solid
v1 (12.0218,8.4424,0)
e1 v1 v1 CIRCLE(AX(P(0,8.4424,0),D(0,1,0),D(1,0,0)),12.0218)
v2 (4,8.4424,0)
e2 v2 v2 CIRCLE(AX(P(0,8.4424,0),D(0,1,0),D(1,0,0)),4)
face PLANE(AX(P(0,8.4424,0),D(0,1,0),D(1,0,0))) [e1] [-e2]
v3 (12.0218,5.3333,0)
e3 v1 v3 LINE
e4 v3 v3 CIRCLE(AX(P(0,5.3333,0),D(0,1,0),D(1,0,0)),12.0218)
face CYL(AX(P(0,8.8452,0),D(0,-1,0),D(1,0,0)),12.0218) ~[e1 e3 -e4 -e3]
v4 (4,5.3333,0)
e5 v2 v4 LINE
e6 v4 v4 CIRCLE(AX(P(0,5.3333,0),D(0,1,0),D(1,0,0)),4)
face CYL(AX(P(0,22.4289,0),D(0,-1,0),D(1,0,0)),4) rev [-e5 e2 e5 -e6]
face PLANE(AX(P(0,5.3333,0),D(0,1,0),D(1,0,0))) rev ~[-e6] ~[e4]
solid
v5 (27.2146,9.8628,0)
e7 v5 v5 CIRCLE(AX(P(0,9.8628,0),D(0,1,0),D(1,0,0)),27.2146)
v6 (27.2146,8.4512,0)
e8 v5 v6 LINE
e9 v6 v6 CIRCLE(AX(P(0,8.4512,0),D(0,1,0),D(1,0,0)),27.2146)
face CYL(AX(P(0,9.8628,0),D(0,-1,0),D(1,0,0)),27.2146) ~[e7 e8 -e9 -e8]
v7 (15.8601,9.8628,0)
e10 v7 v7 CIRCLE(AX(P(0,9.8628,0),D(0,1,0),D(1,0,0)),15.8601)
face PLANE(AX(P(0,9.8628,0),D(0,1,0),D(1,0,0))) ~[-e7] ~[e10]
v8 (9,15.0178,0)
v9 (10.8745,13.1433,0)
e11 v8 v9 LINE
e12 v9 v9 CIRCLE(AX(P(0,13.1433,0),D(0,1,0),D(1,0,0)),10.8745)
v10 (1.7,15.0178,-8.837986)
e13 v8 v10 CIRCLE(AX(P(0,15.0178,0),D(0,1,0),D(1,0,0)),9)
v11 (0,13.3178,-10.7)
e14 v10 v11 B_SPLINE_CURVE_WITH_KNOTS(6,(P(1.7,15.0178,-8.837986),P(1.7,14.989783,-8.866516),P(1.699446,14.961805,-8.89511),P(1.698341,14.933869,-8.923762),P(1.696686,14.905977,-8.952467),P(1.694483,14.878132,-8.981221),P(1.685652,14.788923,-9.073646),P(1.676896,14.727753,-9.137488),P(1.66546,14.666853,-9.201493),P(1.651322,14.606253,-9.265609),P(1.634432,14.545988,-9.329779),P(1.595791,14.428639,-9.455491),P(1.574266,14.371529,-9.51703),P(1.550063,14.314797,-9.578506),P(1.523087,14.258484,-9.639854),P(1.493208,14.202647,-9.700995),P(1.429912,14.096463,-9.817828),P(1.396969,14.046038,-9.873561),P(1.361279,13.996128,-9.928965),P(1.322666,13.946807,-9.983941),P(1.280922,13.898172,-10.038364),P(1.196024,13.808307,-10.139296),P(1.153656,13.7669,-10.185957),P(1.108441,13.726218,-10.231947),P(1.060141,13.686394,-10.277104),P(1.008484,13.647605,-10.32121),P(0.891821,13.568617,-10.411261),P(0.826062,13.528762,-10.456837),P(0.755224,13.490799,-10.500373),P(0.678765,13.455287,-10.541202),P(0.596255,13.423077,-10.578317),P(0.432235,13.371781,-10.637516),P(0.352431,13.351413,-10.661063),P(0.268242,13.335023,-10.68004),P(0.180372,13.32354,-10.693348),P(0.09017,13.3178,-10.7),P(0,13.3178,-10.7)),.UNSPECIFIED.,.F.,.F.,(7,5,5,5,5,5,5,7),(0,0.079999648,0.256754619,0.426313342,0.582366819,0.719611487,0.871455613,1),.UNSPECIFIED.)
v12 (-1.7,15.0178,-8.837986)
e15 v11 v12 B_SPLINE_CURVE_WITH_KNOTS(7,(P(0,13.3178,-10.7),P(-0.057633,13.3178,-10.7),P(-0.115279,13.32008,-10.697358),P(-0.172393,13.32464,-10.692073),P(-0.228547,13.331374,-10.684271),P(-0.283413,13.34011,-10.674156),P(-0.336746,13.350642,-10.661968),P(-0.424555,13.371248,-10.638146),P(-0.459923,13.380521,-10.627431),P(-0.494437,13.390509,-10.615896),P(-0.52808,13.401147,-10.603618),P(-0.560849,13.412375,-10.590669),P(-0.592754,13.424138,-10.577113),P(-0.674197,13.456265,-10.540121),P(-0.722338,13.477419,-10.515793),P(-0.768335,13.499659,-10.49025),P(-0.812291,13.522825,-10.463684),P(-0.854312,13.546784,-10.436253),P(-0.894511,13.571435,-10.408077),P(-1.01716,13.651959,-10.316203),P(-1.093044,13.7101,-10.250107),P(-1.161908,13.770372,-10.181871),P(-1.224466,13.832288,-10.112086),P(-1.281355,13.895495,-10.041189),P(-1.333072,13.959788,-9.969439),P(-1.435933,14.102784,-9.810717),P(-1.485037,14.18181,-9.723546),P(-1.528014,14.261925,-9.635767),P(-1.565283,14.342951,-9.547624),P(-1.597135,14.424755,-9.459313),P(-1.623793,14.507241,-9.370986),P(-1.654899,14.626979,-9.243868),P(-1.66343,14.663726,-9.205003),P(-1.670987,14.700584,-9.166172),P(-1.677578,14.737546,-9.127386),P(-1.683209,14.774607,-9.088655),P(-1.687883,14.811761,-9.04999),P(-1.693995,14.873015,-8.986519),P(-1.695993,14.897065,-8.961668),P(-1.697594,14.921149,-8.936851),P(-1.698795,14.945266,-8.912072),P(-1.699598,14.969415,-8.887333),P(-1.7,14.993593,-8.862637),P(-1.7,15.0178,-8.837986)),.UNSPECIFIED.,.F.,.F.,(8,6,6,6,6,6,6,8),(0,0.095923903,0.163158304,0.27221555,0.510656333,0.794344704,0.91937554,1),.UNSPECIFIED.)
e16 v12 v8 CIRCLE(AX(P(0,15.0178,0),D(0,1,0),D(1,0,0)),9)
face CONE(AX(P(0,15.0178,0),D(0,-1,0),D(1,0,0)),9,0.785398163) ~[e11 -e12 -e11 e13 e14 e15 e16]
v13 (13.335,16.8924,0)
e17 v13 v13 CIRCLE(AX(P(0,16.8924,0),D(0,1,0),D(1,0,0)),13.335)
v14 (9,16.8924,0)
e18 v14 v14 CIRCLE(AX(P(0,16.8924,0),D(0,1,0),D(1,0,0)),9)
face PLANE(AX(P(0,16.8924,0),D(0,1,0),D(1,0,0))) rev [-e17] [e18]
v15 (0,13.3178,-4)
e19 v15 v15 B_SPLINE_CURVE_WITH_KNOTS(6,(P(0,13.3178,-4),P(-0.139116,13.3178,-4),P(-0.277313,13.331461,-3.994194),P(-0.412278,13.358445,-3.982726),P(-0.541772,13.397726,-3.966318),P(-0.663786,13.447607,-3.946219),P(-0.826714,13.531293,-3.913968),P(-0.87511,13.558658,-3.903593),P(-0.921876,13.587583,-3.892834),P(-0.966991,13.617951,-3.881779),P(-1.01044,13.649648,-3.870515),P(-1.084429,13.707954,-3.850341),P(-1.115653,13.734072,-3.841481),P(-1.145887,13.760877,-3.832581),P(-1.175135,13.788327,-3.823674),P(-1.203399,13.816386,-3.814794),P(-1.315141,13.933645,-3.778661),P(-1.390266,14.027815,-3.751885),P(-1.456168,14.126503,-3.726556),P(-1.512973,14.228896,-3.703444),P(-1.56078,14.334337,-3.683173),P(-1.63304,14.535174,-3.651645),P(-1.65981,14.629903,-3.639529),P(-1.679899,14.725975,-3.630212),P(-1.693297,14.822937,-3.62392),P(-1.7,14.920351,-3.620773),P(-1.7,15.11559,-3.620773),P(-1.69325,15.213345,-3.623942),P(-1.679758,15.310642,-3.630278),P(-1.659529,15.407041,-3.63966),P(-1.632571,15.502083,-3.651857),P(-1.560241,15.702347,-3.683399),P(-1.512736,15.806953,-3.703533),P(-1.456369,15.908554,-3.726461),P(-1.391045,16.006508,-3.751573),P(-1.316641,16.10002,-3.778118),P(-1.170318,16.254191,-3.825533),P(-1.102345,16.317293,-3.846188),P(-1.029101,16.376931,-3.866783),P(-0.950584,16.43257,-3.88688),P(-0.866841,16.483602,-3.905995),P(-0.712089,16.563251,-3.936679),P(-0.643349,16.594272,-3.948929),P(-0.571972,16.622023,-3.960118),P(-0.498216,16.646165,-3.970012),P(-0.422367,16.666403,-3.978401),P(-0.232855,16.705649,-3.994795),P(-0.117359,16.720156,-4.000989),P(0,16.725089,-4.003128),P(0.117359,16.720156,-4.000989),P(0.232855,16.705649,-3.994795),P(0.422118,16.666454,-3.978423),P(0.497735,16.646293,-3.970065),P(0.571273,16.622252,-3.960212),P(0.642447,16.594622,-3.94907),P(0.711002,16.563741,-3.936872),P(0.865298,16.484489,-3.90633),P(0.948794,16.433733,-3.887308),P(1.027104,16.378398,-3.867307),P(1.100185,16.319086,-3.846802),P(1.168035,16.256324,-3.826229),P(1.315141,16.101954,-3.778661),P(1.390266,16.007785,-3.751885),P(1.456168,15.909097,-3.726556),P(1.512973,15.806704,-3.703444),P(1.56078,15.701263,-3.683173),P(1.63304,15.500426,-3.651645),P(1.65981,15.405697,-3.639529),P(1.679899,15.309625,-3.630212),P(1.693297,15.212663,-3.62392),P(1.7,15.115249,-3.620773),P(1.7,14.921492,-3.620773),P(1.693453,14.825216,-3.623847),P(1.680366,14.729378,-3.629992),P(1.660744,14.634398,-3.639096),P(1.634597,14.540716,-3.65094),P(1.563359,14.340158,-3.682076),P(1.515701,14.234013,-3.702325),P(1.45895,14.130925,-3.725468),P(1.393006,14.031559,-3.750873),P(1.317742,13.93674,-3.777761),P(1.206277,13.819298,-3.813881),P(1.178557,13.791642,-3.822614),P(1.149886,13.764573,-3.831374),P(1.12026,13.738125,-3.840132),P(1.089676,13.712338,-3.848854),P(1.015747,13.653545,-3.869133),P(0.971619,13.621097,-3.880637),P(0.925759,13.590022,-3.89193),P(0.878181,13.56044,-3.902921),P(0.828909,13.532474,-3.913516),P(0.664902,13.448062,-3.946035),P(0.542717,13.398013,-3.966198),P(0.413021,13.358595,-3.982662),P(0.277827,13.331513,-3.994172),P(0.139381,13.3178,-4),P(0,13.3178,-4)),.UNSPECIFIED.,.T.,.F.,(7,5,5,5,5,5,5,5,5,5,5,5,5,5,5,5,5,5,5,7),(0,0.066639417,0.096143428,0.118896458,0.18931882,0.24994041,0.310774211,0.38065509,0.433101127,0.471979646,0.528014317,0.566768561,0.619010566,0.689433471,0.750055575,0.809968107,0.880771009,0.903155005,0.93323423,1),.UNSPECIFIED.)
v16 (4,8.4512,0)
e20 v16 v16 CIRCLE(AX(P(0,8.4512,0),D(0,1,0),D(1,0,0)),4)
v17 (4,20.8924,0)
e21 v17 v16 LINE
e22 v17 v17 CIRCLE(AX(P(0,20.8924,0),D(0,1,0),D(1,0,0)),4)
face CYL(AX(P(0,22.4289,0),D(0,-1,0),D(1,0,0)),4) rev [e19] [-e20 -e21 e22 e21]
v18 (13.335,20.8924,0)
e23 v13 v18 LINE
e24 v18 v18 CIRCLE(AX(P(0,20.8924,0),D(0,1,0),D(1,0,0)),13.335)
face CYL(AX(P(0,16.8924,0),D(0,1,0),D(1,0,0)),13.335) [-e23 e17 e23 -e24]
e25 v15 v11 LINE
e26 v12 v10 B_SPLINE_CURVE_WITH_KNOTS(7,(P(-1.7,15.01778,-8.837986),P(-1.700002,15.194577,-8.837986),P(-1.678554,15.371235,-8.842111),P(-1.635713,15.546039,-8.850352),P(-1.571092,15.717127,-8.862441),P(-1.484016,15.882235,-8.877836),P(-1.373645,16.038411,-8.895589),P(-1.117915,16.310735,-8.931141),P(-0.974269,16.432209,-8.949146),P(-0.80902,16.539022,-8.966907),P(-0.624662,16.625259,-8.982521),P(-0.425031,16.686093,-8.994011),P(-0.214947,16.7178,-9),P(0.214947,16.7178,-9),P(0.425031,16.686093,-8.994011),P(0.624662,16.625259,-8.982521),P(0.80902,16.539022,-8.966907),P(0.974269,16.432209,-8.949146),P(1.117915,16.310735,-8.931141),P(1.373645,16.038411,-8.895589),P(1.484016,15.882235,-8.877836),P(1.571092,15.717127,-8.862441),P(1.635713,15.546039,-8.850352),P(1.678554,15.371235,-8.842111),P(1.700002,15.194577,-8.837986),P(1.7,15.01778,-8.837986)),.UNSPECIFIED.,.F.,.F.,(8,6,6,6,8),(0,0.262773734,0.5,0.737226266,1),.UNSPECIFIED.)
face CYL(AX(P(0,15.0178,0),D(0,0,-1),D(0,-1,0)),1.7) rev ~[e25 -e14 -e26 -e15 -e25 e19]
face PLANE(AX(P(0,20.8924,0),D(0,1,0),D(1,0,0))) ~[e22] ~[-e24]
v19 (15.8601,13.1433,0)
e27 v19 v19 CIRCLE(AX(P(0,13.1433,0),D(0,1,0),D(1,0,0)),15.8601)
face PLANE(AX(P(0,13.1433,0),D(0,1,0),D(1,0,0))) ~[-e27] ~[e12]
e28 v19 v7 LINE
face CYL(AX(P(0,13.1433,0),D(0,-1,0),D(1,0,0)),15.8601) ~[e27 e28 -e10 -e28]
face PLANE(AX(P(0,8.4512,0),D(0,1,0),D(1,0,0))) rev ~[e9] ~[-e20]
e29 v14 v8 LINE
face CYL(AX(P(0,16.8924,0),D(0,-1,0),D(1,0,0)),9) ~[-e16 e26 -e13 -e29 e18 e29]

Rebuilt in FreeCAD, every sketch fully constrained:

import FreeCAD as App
import Part
import Sketcher
from FreeCAD import Vector
Q = App.Units.Quantity

doc = App.newDocument("Part")
body = doc.addObject("PartDesign::Body", "Body")
body.AllowCompound = True

# Sketch on XY plane
sketch1 = body.newObject("Sketcher::SketchObject", "Sketch")
sketch1.AttachmentSupport = (doc.getObject("XY_Plane"), [""])
sketch1.MapMode = "FlatFace"
sketch1.addGeometry(Part.LineSegment(Vector(9, 16.8924, 0), Vector(13.335, 16.8924, 0)), False)
sketch1.addGeometry(Part.LineSegment(Vector(13.335, 16.8924, 0), Vector(13.335, 20.8924, 0)), False)
sketch1.addGeometry(Part.LineSegment(Vector(13.335, 20.8924, 0), Vector(4, 20.8924, 0)), False)
sketch1.addGeometry(Part.LineSegment(Vector(4, 20.8924, 0), Vector(4, 8.4512, 0)), False)
sketch1.addGeometry(Part.LineSegment(Vector(4, 8.4512, 0), Vector(27.2146, 8.4512, 0)), False)
sketch1.addGeometry(Part.LineSegment(Vector(27.2146, 8.4512, 0), Vector(27.2146, 9.8628, 0)), False)
sketch1.addGeometry(Part.LineSegment(Vector(27.2146, 9.8628, 0), Vector(15.8601, 9.8628, 0)), False)
sketch1.addGeometry(Part.LineSegment(Vector(15.8601, 9.8628, 0), Vector(15.8601, 13.1433, 0)), False)
sketch1.addGeometry(Part.LineSegment(Vector(15.8601, 13.1433, 0), Vector(10.8745, 13.1433, 0)), False)
sketch1.addGeometry(Part.LineSegment(Vector(10.8745, 13.1433, 0), Vector(9, 15.0178, 0)), False)
sketch1.addGeometry(Part.LineSegment(Vector(9, 15.0178, 0), Vector(9, 16.8924, 0)), False)
sketch1.addGeometry(Part.LineSegment(Vector(12.0218, 8.4424, 0), Vector(4, 8.4424, 0)), False)
sketch1.addGeometry(Part.LineSegment(Vector(4, 8.4424, 0), Vector(4, 5.3333, 0)), False)
sketch1.addGeometry(Part.LineSegment(Vector(4, 5.3333, 0), Vector(12.0218, 5.3333, 0)), False)
sketch1.addGeometry(Part.LineSegment(Vector(12.0218, 5.3333, 0), Vector(12.0218, 8.4424, 0)), False)
sketch1.addConstraint(Sketcher.Constraint("Coincident", 0, 2, 1, 1))
sketch1.addConstraint(Sketcher.Constraint("Coincident", 1, 2, 2, 1))
sketch1.addConstraint(Sketcher.Constraint("Coincident", 2, 2, 3, 1))
sketch1.addConstraint(Sketcher.Constraint("Coincident", 3, 2, 4, 1))
sketch1.addConstraint(Sketcher.Constraint("Coincident", 4, 2, 5, 1))
sketch1.addConstraint(Sketcher.Constraint("Coincident", 5, 2, 6, 1))
sketch1.addConstraint(Sketcher.Constraint("Coincident", 6, 2, 7, 1))
sketch1.addConstraint(Sketcher.Constraint("Coincident", 7, 2, 8, 1))
sketch1.addConstraint(Sketcher.Constraint("Coincident", 8, 2, 9, 1))
sketch1.addConstraint(Sketcher.Constraint("Coincident", 9, 2, 10, 1))
sketch1.addConstraint(Sketcher.Constraint("Coincident", 10, 2, 0, 1))
sketch1.addConstraint(Sketcher.Constraint("Coincident", 11, 2, 12, 1))
sketch1.addConstraint(Sketcher.Constraint("Coincident", 12, 2, 13, 1))
sketch1.addConstraint(Sketcher.Constraint("Coincident", 13, 2, 14, 1))
sketch1.addConstraint(Sketcher.Constraint("Coincident", 14, 2, 11, 1))
sketch1.addConstraint(Sketcher.Constraint("Horizontal", 0))
sketch1.addConstraint(Sketcher.Constraint("Vertical", 1))
sketch1.addConstraint(Sketcher.Constraint("Horizontal", 2))
sketch1.addConstraint(Sketcher.Constraint("Vertical", 3))
sketch1.addConstraint(Sketcher.Constraint("Horizontal", 4))
sketch1.addConstraint(Sketcher.Constraint("Vertical", 5))
sketch1.addConstraint(Sketcher.Constraint("Horizontal", 6))
sketch1.addConstraint(Sketcher.Constraint("Vertical", 7))
sketch1.addConstraint(Sketcher.Constraint("Horizontal", 8))
sketch1.addConstraint(Sketcher.Constraint("Vertical", 10))
sketch1.addConstraint(Sketcher.Constraint("Horizontal", 11))
sketch1.addConstraint(Sketcher.Constraint("Vertical", 12))
sketch1.addConstraint(Sketcher.Constraint("Horizontal", 13))
sketch1.addConstraint(Sketcher.Constraint("Vertical", 14))
sketch1.addConstraint(Sketcher.Constraint("Vertical", 3, 2, 11, 2))
sketch1.addConstraint(Sketcher.Constraint("DistanceY", 1, 1, 1, 2, Q("4 mm")))
sketch1.addConstraint(Sketcher.Constraint("DistanceX", -1, 1, 2, 2, Q("4 mm")))
sketch1.addConstraint(Sketcher.Constraint("Angle", 9, Q("135 deg")))
sketch1.addConstraint(Sketcher.Constraint("DistanceX", -1, 1, 9, 2, Q("9 mm")))
sketch1.addConstraint(Sketcher.Constraint("DistanceX", 0, 1, 0, 2, Q("4.335 mm")))
sketch1.addConstraint(Sketcher.Constraint("DistanceY", 12, 2, 12, 1, Q("3.109 mm")))
sketch1.addConstraint(Sketcher.Constraint("DistanceX", -1, 1, 6, 2, Q("15.86 mm")))
sketch1.addConstraint(Sketcher.Constraint("DistanceY", 11, 2, 10, 2, Q("8.45 mm")))
sketch1.addConstraint(Sketcher.Constraint("DistanceY", 12, 2, 8, 2, Q("7.81 mm")))
sketch1.addConstraint(Sketcher.Constraint("Distance", 9, Q("2.651 mm")))
sketch1.addConstraint(Sketcher.Constraint("DistanceX", 4, 1, 4, 2, Q("23.2146 mm")))
sketch1.addConstraint(Sketcher.Constraint("DistanceX", 11, 2, 11, 1, Q("8.0218 mm")))
sketch1.addConstraint(Sketcher.Constraint("DistanceY", 3, 2, 3, 1, Q("12.4412 mm")))
sketch1.addConstraint(Sketcher.Constraint("DistanceY", 5, 1, 5, 2, Q("1.4116 mm")))
sketch1.addConstraint(Sketcher.Constraint("DistanceY", -1, 1, 0, 2, Q("16.8924 mm")))
revolution = body.newObject("PartDesign::Revolution", "Revolution")
revolution.Profile = sketch1
revolution.ReferenceAxis = (sketch1, ["V_Axis"])
revolution.Angle = 360

# Sketch on XY plane
sketch2 = body.newObject("Sketcher::SketchObject", "Sketch001")
sketch2.AttachmentSupport = (doc.getObject("XY_Plane"), [""])
sketch2.MapMode = "FlatFace"
sketch2.addGeometry(Part.Circle(Vector(0, 15.0178, 0), Vector(0, 0, 1), 1.7), False)
sketch2.addConstraint(Sketcher.Constraint("PointOnObject", 0, 3, -2))
sketch2.addConstraint(Sketcher.Constraint("Diameter", 0, Q("3.4 mm")))
sketch2.addConstraint(Sketcher.Constraint("DistanceY", -1, 1, 0, 3, Q("15.0178 mm")))
doc.recompute()
hole = body.newObject("PartDesign::Hole", "Hole")
hole.Profile = sketch2
hole.ThreadType = "None"
hole.Diameter = 3.4
hole.DepthType = "ThroughAll"

doc.recompute()
